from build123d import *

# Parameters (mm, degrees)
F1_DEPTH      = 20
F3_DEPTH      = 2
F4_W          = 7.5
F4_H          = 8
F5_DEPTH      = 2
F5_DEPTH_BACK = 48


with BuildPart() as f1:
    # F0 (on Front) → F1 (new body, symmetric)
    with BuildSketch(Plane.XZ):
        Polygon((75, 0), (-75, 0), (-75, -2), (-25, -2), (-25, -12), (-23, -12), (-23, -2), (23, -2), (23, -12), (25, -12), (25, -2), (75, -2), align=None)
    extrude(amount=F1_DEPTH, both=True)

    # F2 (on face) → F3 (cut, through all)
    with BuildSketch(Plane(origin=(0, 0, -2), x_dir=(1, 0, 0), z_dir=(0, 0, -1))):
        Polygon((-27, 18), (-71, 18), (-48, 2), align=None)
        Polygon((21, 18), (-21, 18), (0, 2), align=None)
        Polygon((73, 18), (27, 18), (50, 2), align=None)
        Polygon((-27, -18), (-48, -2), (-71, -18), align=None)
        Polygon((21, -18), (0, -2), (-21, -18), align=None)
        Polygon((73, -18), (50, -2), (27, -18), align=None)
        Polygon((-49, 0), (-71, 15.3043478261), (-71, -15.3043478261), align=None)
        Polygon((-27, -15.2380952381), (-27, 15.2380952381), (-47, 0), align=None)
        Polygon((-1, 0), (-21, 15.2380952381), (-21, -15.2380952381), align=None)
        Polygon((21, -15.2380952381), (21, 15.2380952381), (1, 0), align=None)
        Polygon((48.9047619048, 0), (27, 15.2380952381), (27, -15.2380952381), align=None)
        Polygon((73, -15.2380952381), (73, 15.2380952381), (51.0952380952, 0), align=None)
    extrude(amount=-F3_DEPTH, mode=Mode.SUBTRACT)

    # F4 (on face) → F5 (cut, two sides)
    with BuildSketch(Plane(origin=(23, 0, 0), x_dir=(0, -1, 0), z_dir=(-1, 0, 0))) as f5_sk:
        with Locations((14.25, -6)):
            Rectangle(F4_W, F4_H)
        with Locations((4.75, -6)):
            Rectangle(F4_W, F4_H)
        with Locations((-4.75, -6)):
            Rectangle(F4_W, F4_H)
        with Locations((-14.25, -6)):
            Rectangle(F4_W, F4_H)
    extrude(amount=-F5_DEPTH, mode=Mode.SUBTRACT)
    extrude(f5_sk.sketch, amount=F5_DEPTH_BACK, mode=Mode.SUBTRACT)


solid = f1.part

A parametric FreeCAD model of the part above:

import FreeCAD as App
import Part
import Sketcher

V = App.Vector
Q = App.Units.Quantity


def add_polygon(sketch, points):
    """Adds a closed chain of lines whose ends are joined by coincident constraints."""
    first, n = sketch.GeometryCount, len(points)
    for a, b in zip(points, points[1:] + points[:1]):
        sketch.addGeometry(Part.LineSegment(App.Vector(*a, 0), App.Vector(*b, 0)), False)
    for i in range(n):
        sketch.addConstraint(Sketcher.Constraint("Coincident", first + i, 2, first + (i + 1) % n, 1))

doc = App.newDocument("Part")
body = doc.addObject("PartDesign::Body", "Body")

# Sketch on XZ plane
sketch1 = body.newObject("Sketcher::SketchObject", "Sketch")
sketch1.AttachmentSupport = (doc.getObject("XZ_Plane"), [""])
sketch1.MapMode = "FlatFace"
add_polygon(sketch1, [(75, 0), (-75, 0), (-75, -2), (-25, -2), (-25, -12), (-23, -12), (-23, -2), (23, -2), (23, -12), (25, -12), (25, -2), (75, -2)])  # lines 0-11
sketch1.addConstraint(Sketcher.Constraint("Horizontal", 0))
sketch1.addConstraint(Sketcher.Constraint("Vertical", 1))
sketch1.addConstraint(Sketcher.Constraint("Horizontal", 2))
sketch1.addConstraint(Sketcher.Constraint("Vertical", 3))
sketch1.addConstraint(Sketcher.Constraint("Horizontal", 4))
sketch1.addConstraint(Sketcher.Constraint("Vertical", 5))
sketch1.addConstraint(Sketcher.Constraint("Horizontal", 6))
sketch1.addConstraint(Sketcher.Constraint("Vertical", 7))
sketch1.addConstraint(Sketcher.Constraint("Horizontal", 8))
sketch1.addConstraint(Sketcher.Constraint("Vertical", 9))
sketch1.addConstraint(Sketcher.Constraint("Horizontal", 10))
sketch1.addConstraint(Sketcher.Constraint("Vertical", 11))
sketch1.addConstraint(Sketcher.Constraint("Symmetric", 0, 2, 11, 2, -1, 1))
sketch1.addConstraint(Sketcher.Constraint("Symmetric", 4, 2, 7, 2, -2))
sketch1.addConstraint(Sketcher.Constraint("Symmetric", 2, 2, 9, 2, -2))
sketch1.addConstraint(Sketcher.Constraint("Horizontal", 2, 2, 5, 2))
sketch1.addConstraint(Sketcher.Constraint("Equal", 8, 1))
sketch1.addConstraint(Sketcher.Constraint("DistanceX", 0, 2, 0, 1, Q("150 mm")))
sketch1.addConstraint(Sketcher.Constraint("DistanceX", 2, 1, 2, 2, Q("50 mm")))
sketch1.addConstraint(Sketcher.Constraint("DistanceX", 4, 1, 4, 2, Q("2 mm")))
sketch1.addConstraint(Sketcher.Constraint("DistanceY", 3, 2, 3, 1, Q("10 mm")))
pad1 = body.newObject("PartDesign::Pad", "Pad")
pad1.Profile = sketch1
pad1.Length = 40
pad1.Midplane = True

# Sketch on XY plane
sketch2 = body.newObject("Sketcher::SketchObject", "Sketch001")
sketch2.AttachmentSupport = (doc.getObject("XY_Plane"), [""])
sketch2.MapMode = "FlatFace"
sketch2.AttachmentOffset = App.Placement(V(0, 0, -2), App.Rotation())
add_polygon(sketch2, [(-27, -18), (-71, -18), (-48, -2)])  # lines 0-2
add_polygon(sketch2, [(21, -18), (-21, -18), (0, -2)])  # lines 3-5
add_polygon(sketch2, [(73, -18), (27, -18), (50, -2)])  # lines 6-8
add_polygon(sketch2, [(-27, 18), (-48, 2), (-71, 18)])  # lines 9-11
add_polygon(sketch2, [(21, 18), (0, 2), (-21, 18)])  # lines 12-14
add_polygon(sketch2, [(73, 18), (50, 2), (27, 18)])  # lines 15-17
add_polygon(sketch2, [(-49, 0), (-71, -15), (-71, 15)])  # lines 18-20
add_polygon(sketch2, [(-27, 15), (-27, -15), (-47, 0)])  # lines 21-23
add_polygon(sketch2, [(-1, 0), (-21, -15), (-21, 15)])  # lines 24-26
add_polygon(sketch2, [(21, 15), (21, -15), (1, 0)])  # lines 27-29
add_polygon(sketch2, [(49, 0), (27, -15), (27, 15)])  # lines 30-32
add_polygon(sketch2, [(73, 15), (73, -15), (51, 0)])  # lines 33-35
sketch2.addConstraint(Sketcher.Constraint("Horizontal", 0))
sketch2.addConstraint(Sketcher.Constraint("Horizontal", 3))
sketch2.addConstraint(Sketcher.Constraint("Horizontal", 6))
sketch2.addConstraint(Sketcher.Constraint("Horizontal", 11))
sketch2.addConstraint(Sketcher.Constraint("Horizontal", 14))
sketch2.addConstraint(Sketcher.Constraint("Horizontal", 17))
sketch2.addConstraint(Sketcher.Constraint("Vertical", 19))
sketch2.addConstraint(Sketcher.Constraint("Vertical", 21))
sketch2.addConstraint(Sketcher.Constraint("Vertical", 25))
sketch2.addConstraint(Sketcher.Constraint("Vertical", 27))
sketch2.addConstraint(Sketcher.Constraint("Vertical", 31))
sketch2.addConstraint(Sketcher.Constraint("Vertical", 33))
sketch2.addConstraint(Sketcher.Constraint("Symmetric", 6, 2, 11, 2, -1, 1))
sketch2.addConstraint(Sketcher.Constraint("Symmetric", 4, 2, 12, 2, -1, 1))
sketch2.addConstraint(Sketcher.Constraint("Symmetric", 5, 2, 13, 2, -1, 1))
sketch2.addConstraint(Sketcher.Constraint("Symmetric", 2, 2, 16, 2, -1, 1))
sketch2.addConstraint(Sketcher.Constraint("Symmetric", 25, 2, 27, 2, -1, 1))
sketch2.addConstraint(Sketcher.Constraint("Symmetric", 26, 2, 28, 2, -1, 1))
sketch2.addConstraint(Sketcher.Constraint("Symmetric", 23, 2, 30, 2, -1, 1))
sketch2.addConstraint(Sketcher.Constraint("Symmetric", 2, 2, 6, 2, -2))
sketch2.addConstraint(Sketcher.Constraint("Symmetric", 1, 2, 9, 2, -1))
sketch2.addConstraint(Sketcher.Constraint("Symmetric", 7, 2, 15, 2, -1))
sketch2.addConstraint(Sketcher.Constraint("PointOnObject", 4, 2, -2))
sketch2.addConstraint(Sketcher.Constraint("PointOnObject", 20, 2, -1))
sketch2.addConstraint(Sketcher.Constraint("PointOnObject", 22, 2, -1))
sketch2.addConstraint(Sketcher.Constraint("PointOnObject", 26, 2, -1))
sketch2.addConstraint(Sketcher.Constraint("PointOnObject", 32, 2, -1))
sketch2.addConstraint(Sketcher.Constraint("PointOnObject", 34, 2, -1))
sketch2.addConstraint(Sketcher.Constraint("Parallel", 2, 5))
sketch2.addConstraint(Sketcher.Constraint("Parallel", 1, 7))
sketch2.addConstraint(Sketcher.Constraint("Parallel", 4, 9))
sketch2.addConstraint(Sketcher.Constraint("Parallel", 8, 10))
sketch2.addConstraint(Sketcher.Constraint("Parallel", 9, 12))
sketch2.addConstraint(Sketcher.Constraint("Parallel", 7, 15))
sketch2.addConstraint(Sketcher.Constraint("Parallel", 10, 16))
sketch2.addConstraint(Sketcher.Constraint("Parallel", 15, 18))
sketch2.addConstraint(Sketcher.Constraint("Parallel", 16, 20))
sketch2.addConstraint(Sketcher.Constraint("Parallel", 13, 22))
sketch2.addConstraint(Sketcher.Constraint("Parallel", 12, 23))
sketch2.addConstraint(Sketcher.Constraint("Parallel", 23, 24))
sketch2.addConstraint(Sketcher.Constraint("Parallel", 22, 26))
sketch2.addConstraint(Sketcher.Constraint("Parallel", 24, 29))
sketch2.addConstraint(Sketcher.Constraint("Parallel", 18, 30))
sketch2.addConstraint(Sketcher.Constraint("Parallel", 20, 32))
sketch2.addConstraint(Sketcher.Constraint("Parallel", 32, 34))
sketch2.addConstraint(Sketcher.Constraint("Parallel", 30, 35))
sketch2.addConstraint(Sketcher.Constraint("Horizontal", 2, 2, 3, 2))
sketch2.addConstraint(Sketcher.Constraint("Horizontal", 1, 2, 4, 2))
sketch2.addConstraint(Sketcher.Constraint("Horizontal", 4, 2, 7, 2))
sketch2.addConstraint(Sketcher.Constraint("Horizontal", 21, 2, 24, 2))
sketch2.addConstraint(Sketcher.Constraint("Horizontal", 30, 2, 33, 2))
sketch2.addConstraint(Sketcher.Constraint("Vertical", 10, 2, 18, 2))
sketch2.addConstraint(Sketcher.Constraint("Vertical", 11, 2, 21, 2))
sketch2.addConstraint(Sketcher.Constraint("Vertical", 13, 2, 24, 2))
sketch2.addConstraint(Sketcher.Constraint("Vertical", 17, 2, 33, 2))
sketch2.addConstraint(Sketcher.Constraint("DistanceX", 0, 2, 0, 1, Q("44 mm")))
sketch2.addConstraint(Sketcher.Constraint("DistanceX", 3, 2, 3, 1, Q("42 mm")))
sketch2.addConstraint(Sketcher.Constraint("DistanceX", 0, 2, -1, 1, Q("71 mm")))
sketch2.addConstraint(Sketcher.Constraint("DistanceY", 0, 2, -1, 1, Q("18 mm")))
sketch2.addConstraint(Sketcher.Constraint("DistanceY", 1, 2, -1, 1, Q("2 mm")))
sketch2.addConstraint(Sketcher.Constraint("DistanceX", 20, 2, -1, 1, Q("49 mm")))
sketch2.addConstraint(Sketcher.Constraint("DistanceX", 22, 2, -1, 1, Q("47 mm")))
pocket1 = body.newObject("PartDesign::Pocket", "Pocket")
pocket1.Profile = sketch2
pocket1.Type = "ThroughAll"
pocket1.Reversed = True

# Sketch on YZ plane
sketch3 = body.newObject("Sketcher::SketchObject", "Sketch002")
sketch3.AttachmentSupport = (doc.getObject("YZ_Plane"), [""])
sketch3.MapMode = "FlatFace"
sketch3.AttachmentOffset = App.Placement(V(0, 0, 23), App.Rotation())
add_polygon(sketch3, [(-10, -2), (-10, -10), (-18, -10), (-18, -2)])  # lines 0-3
add_polygon(sketch3, [(-1, -2), (-1, -10), (-8, -10), (-8, -2)])  # lines 4-7
add_polygon(sketch3, [(8, -2), (8, -10), (1, -10), (1, -2)])  # lines 8-11
add_polygon(sketch3, [(18, -2), (18, -10), (10, -10), (10, -2)])  # lines 12-15
sketch3.addConstraint(Sketcher.Constraint("Vertical", 0))
sketch3.addConstraint(Sketcher.Constraint("Horizontal", 1))
sketch3.addConstraint(Sketcher.Constraint("Vertical", 2))
sketch3.addConstraint(Sketcher.Constraint("Horizontal", 3))
sketch3.addConstraint(Sketcher.Constraint("Vertical", 4))
sketch3.addConstraint(Sketcher.Constraint("Horizontal", 5))
sketch3.addConstraint(Sketcher.Constraint("Vertical", 6))
sketch3.addConstraint(Sketcher.Constraint("Horizontal", 7))
sketch3.addConstraint(Sketcher.Constraint("Vertical", 8))
sketch3.addConstraint(Sketcher.Constraint("Horizontal", 9))
sketch3.addConstraint(Sketcher.Constraint("Vertical", 10))
sketch3.addConstraint(Sketcher.Constraint("Horizontal", 11))
sketch3.addConstraint(Sketcher.Constraint("Vertical", 12))
sketch3.addConstraint(Sketcher.Constraint("Horizontal", 13))
sketch3.addConstraint(Sketcher.Constraint("Vertical", 14))
sketch3.addConstraint(Sketcher.Constraint("Horizontal", 15))
sketch3.addConstraint(Sketcher.Constraint("Symmetric", 5, 2, 8, 2, -2))
sketch3.addConstraint(Sketcher.Constraint("Symmetric", 7, 2, 10, 2, -2))
sketch3.addConstraint(Sketcher.Constraint("Symmetric", 1, 2, 12, 2, -2))
sketch3.addConstraint(Sketcher.Constraint("Symmetric", 3, 2, 14, 2, -2))
sketch3.addConstraint(Sketcher.Constraint("Horizontal", 1, 2, 4, 2))
sketch3.addConstraint(Sketcher.Constraint("Horizontal", 3, 2, 6, 2))
sketch3.addConstraint(Sketcher.Constraint("Equal", 3, 5))
sketch3.addConstraint(Sketcher.Constraint("DistanceY", 0, 2, 0, 1, Q("8 mm")))
sketch3.addConstraint(Sketcher.Constraint("DistanceX", 1, 2, 1, 1, Q("7.5 mm")))
sketch3.addConstraint(Sketcher.Constraint("DistanceY", 0, 2, -1, 1, Q("10 mm")))
sketch3.addConstraint(Sketcher.Constraint("DistanceX", 1, 2, -1, 1, Q("18 mm")))
sketch3.addConstraint(Sketcher.Constraint("DistanceX", 4, 2, -1, 1, Q("1 mm")))
pocket2 = body.newObject("PartDesign::Pocket", "Pocket001")
pocket2.Profile = sketch3
pocket2.Type = "ThroughAll"
pocket2.Midplane = True

doc.recompute()
